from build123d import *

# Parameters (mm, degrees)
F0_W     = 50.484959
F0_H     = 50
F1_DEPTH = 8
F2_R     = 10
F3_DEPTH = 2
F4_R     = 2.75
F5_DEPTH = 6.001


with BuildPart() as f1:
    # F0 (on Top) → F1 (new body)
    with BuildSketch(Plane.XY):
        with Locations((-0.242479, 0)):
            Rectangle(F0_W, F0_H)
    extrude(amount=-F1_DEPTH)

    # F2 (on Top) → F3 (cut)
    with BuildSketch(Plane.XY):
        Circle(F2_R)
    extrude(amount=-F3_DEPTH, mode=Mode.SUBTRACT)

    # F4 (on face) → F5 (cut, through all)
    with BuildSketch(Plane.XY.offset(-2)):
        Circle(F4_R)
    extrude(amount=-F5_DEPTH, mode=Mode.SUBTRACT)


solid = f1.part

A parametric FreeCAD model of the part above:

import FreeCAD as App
import Part
import Sketcher
Q = App.Units.Quantity


def add_polygon(sketch, points):
    """Adds a closed chain of lines whose ends are joined by coincident constraints."""
    first, n = sketch.GeometryCount, len(points)
    for a, b in zip(points, points[1:] + points[:1]):
        sketch.addGeometry(Part.LineSegment(App.Vector(*a, 0), App.Vector(*b, 0)), False)
    for i in range(n):
        sketch.addConstraint(Sketcher.Constraint("Coincident", first + i, 2, first + (i + 1) % n, 1))

doc = App.newDocument("Part")
body = doc.addObject("PartDesign::Body", "Body")

sketch1 = doc.addObject("Sketcher::SketchObject", "Sketch")
body.addObject(sketch1)
sketch1.AttachmentSupport = (doc.XY_Plane, [""])
sketch1.MapMode = "FlatFace"
add_polygon(sketch1, [(-25.484959, 25), (-25.484959, -25), (25, -25), (25, 25)])
sketch1.addConstraint([
    Sketcher.Constraint("Vertical", 0),
    Sketcher.Constraint("Horizontal", 1),
    Sketcher.Constraint("Vertical", 2),
    Sketcher.Constraint("Horizontal", 3),
    Sketcher.Constraint("DistanceY", 0, 2, 0, 1, Q("50 mm")),
    Sketcher.Constraint("DistanceY", 0, 2, -1, 1, Q("25 mm")),
    Sketcher.Constraint("DistanceX", -1, 1, 1, 2, Q("25 mm")),
    Sketcher.Constraint("DistanceX", 1, 1, 1, 2, Q("50.484959 mm")),
])
pad1 = doc.addObject("PartDesign::Pad", "Pad")
body.addObject(pad1)
pad1.Profile = sketch1
pad1.Length = 8
pad1.Reversed = True

sketch2 = doc.addObject("Sketcher::SketchObject", "Sketch001")
body.addObject(sketch2)
sketch2.AttachmentSupport = (doc.XY_Plane, [""])
sketch2.MapMode = "FlatFace"
sketch2.addGeometry(Part.Circle(App.Vector(0, 0, 0), App.Vector(0, 0, 1), 10), False)
sketch2.addConstraint([
    Sketcher.Constraint("Coincident", 0, 3, -1, 1),
    Sketcher.Constraint("Diameter", 0, Q("20 mm")),
])
pocket1 = doc.addObject("PartDesign::Pocket", "Pocket")
body.addObject(pocket1)
pocket1.Profile = sketch2
pocket1.Length = 2

sketch3 = doc.addObject("Sketcher::SketchObject", "Sketch002")
body.addObject(sketch3)
sketch3.AttachmentSupport = (doc.XY_Plane, [""])
sketch3.MapMode = "FlatFace"
sketch3.AttachmentOffset = App.Placement(App.Vector(0, 0, -2), App.Rotation())
sketch3.addGeometry(Part.Circle(App.Vector(0, 0, 0), App.Vector(0, 0, 1), 2.75), False)
sketch3.addConstraint([
    Sketcher.Constraint("Coincident", 0, 3, -1, 1),
    Sketcher.Constraint("Diameter", 0, Q("5.5 mm")),
])
pocket2 = doc.addObject("PartDesign::Pocket", "Pocket001")
body.addObject(pocket2)
pocket2.Profile = sketch3
pocket2.Type = "ThroughAll"

doc.recompute()
